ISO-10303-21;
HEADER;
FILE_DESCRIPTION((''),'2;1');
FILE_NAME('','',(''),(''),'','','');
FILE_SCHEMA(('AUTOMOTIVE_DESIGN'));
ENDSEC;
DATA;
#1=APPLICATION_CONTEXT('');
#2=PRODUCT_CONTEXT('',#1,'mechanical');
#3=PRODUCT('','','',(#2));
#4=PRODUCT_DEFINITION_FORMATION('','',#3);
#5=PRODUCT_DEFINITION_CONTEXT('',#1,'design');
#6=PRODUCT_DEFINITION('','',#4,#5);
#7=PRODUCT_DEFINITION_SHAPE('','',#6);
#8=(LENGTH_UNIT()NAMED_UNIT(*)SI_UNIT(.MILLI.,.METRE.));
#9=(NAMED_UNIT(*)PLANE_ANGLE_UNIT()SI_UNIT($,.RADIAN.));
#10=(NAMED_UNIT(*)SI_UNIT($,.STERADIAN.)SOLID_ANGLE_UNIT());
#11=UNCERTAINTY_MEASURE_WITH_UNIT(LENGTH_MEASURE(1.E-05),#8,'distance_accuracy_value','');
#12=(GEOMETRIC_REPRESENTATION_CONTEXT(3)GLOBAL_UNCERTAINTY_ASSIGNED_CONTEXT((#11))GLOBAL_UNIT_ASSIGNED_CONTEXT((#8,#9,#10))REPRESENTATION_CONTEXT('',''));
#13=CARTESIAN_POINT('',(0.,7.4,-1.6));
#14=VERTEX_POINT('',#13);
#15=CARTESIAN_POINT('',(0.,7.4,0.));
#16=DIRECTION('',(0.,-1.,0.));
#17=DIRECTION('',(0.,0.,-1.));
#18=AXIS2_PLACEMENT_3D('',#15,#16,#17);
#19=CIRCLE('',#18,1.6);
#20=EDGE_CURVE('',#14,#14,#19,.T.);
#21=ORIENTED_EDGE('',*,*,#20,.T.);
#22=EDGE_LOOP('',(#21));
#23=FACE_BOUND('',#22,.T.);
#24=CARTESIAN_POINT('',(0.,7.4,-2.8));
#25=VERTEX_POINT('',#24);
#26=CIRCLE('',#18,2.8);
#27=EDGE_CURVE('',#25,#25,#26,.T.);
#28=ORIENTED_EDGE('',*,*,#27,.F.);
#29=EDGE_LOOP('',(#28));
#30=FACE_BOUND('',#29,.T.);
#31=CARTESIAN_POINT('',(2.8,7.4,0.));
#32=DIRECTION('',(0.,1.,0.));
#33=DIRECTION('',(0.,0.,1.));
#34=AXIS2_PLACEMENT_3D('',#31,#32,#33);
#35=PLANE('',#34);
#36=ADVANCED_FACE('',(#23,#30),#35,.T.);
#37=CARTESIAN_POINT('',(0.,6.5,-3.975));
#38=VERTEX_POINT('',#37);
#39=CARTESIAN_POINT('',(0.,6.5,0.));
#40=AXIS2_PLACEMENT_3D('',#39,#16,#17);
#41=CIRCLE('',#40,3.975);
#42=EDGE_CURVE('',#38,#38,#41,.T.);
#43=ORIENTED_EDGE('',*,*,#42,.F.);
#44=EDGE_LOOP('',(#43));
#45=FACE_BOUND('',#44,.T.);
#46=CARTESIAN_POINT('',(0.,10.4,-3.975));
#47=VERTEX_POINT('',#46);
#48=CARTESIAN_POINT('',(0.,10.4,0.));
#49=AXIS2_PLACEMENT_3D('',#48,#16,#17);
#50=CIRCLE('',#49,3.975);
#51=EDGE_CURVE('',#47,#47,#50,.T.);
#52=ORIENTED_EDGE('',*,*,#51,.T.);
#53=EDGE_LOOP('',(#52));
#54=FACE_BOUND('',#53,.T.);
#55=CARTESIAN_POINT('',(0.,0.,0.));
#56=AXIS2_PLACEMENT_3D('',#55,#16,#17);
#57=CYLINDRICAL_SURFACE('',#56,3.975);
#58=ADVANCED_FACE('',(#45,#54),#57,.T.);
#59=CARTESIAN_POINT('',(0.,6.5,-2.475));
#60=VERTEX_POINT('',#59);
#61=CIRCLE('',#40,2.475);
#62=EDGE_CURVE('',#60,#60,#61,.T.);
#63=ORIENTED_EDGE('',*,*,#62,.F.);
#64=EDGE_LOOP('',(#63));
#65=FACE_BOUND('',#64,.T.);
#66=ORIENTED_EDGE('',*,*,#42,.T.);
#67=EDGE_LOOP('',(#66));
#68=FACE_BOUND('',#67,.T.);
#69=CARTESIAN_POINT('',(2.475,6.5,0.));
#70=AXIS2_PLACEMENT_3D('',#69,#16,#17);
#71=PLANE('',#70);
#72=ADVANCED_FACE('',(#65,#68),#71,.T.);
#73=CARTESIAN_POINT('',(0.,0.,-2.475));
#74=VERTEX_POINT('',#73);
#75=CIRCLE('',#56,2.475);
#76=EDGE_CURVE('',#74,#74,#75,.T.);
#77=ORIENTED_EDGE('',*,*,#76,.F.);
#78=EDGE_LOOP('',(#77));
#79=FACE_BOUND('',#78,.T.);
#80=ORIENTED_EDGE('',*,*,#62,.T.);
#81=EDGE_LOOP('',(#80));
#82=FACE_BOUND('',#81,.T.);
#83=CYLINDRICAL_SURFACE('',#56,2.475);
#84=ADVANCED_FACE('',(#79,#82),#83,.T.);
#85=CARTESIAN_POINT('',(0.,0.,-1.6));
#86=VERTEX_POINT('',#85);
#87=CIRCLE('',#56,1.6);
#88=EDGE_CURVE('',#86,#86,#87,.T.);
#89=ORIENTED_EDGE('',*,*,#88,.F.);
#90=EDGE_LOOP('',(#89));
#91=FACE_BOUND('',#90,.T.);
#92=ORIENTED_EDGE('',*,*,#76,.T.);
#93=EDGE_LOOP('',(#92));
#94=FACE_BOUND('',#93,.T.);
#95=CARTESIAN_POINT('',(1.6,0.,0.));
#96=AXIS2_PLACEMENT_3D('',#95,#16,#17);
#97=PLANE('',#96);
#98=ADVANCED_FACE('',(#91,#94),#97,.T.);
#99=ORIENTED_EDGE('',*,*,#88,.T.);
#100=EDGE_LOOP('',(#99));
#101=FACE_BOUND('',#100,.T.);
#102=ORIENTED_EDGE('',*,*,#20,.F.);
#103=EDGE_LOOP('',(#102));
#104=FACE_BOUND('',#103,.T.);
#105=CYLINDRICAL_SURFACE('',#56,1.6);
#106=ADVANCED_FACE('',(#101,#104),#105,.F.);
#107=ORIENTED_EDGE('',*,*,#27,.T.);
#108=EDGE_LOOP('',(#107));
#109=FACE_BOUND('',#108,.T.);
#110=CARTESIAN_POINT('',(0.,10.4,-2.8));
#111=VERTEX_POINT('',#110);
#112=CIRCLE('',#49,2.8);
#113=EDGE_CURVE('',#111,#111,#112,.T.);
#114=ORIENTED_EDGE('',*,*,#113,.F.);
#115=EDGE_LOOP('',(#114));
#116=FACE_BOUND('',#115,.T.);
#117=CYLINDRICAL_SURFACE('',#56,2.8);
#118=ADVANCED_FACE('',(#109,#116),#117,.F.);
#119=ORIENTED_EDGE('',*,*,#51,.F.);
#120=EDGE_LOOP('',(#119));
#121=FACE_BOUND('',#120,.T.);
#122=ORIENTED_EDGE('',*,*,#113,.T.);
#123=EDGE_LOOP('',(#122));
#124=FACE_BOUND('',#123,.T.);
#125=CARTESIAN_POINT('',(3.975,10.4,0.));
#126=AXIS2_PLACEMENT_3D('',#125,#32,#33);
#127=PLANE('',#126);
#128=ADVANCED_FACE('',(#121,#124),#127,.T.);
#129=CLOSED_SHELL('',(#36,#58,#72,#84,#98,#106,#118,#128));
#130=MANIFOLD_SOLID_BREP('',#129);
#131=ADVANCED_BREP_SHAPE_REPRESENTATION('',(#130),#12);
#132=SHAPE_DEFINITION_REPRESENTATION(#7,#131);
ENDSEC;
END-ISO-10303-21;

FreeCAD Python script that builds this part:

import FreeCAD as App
import Part
import Sketcher
from FreeCAD import Vector


def add_polygon(sketch, points):
    """Adds a closed chain of lines whose ends are joined by coincident constraints."""
    first, n = sketch.GeometryCount, len(points)
    for a, b in zip(points, points[1:] + points[:1]):
        sketch.addGeometry(Part.LineSegment(App.Vector(*a, 0), App.Vector(*b, 0)), False)
    for i in range(n):
        sketch.addConstraint(Sketcher.Constraint("Coincident", first + i, 2, first + (i + 1) % n, 1))

doc = App.newDocument("Part")
body = doc.addObject("PartDesign::Body", "Body")

# Sketch on XY plane
sketch1 = doc.addObject("Sketcher::SketchObject", "Sketch")
body.addObject(sketch1)
sketch1.AttachmentSupport = (doc.XY_Plane, [""])
sketch1.MapMode = "FlatFace"
add_polygon(sketch1, [(2.8, 10.4), (2.8, 7.4), (1.6, 7.4), (1.6, 0), (2.5, 0), (2.5, 6.5), (4, 6.5), (4, 10.4)])  # lines 0-7
sketch1.addConstraint(Sketcher.Constraint("Vertical", 0))
sketch1.addConstraint(Sketcher.Constraint("Horizontal", 1))
sketch1.addConstraint(Sketcher.Constraint("Vertical", 2))
sketch1.addConstraint(Sketcher.Constraint("Horizontal", 3))
sketch1.addConstraint(Sketcher.Constraint("Vertical", 4))
sketch1.addConstraint(Sketcher.Constraint("Horizontal", 5))
sketch1.addConstraint(Sketcher.Constraint("Vertical", 6))
sketch1.addConstraint(Sketcher.Constraint("Horizontal", 7))
sketch1.addConstraint(Sketcher.Constraint("PointOnObject", 2, 2, -1))
sketch1.addConstraint(Sketcher.Constraint("DistanceY", 0, 2, 0, 1, 3.0))
sketch1.addConstraint(Sketcher.Constraint("DistanceX", 1, 2, 1, 1, 1.2))
sketch1.addConstraint(Sketcher.Constraint("DistanceX", 5, 1, 5, 2, 1.5))
sketch1.addConstraint(Sketcher.Constraint("DistanceY", 2, 2, 2, 1, 7.4))
sketch1.addConstraint(Sketcher.Constraint("DistanceY", 4, 1, 4, 2, 6.5))
sketch1.addConstraint(Sketcher.Constraint("DistanceX", -1, 1, 0, 2, 2.8))
sketch1.addConstraint(Sketcher.Constraint("DistanceX", 3, 1, 3, 2, 0.875))
revolution = doc.addObject("PartDesign::Revolution", "Revolution")
body.addObject(revolution)
revolution.Profile = sketch1
revolution.ReferenceAxis = (sketch1, ["V_Axis"])
revolution.Angle = 360

doc.recompute()
